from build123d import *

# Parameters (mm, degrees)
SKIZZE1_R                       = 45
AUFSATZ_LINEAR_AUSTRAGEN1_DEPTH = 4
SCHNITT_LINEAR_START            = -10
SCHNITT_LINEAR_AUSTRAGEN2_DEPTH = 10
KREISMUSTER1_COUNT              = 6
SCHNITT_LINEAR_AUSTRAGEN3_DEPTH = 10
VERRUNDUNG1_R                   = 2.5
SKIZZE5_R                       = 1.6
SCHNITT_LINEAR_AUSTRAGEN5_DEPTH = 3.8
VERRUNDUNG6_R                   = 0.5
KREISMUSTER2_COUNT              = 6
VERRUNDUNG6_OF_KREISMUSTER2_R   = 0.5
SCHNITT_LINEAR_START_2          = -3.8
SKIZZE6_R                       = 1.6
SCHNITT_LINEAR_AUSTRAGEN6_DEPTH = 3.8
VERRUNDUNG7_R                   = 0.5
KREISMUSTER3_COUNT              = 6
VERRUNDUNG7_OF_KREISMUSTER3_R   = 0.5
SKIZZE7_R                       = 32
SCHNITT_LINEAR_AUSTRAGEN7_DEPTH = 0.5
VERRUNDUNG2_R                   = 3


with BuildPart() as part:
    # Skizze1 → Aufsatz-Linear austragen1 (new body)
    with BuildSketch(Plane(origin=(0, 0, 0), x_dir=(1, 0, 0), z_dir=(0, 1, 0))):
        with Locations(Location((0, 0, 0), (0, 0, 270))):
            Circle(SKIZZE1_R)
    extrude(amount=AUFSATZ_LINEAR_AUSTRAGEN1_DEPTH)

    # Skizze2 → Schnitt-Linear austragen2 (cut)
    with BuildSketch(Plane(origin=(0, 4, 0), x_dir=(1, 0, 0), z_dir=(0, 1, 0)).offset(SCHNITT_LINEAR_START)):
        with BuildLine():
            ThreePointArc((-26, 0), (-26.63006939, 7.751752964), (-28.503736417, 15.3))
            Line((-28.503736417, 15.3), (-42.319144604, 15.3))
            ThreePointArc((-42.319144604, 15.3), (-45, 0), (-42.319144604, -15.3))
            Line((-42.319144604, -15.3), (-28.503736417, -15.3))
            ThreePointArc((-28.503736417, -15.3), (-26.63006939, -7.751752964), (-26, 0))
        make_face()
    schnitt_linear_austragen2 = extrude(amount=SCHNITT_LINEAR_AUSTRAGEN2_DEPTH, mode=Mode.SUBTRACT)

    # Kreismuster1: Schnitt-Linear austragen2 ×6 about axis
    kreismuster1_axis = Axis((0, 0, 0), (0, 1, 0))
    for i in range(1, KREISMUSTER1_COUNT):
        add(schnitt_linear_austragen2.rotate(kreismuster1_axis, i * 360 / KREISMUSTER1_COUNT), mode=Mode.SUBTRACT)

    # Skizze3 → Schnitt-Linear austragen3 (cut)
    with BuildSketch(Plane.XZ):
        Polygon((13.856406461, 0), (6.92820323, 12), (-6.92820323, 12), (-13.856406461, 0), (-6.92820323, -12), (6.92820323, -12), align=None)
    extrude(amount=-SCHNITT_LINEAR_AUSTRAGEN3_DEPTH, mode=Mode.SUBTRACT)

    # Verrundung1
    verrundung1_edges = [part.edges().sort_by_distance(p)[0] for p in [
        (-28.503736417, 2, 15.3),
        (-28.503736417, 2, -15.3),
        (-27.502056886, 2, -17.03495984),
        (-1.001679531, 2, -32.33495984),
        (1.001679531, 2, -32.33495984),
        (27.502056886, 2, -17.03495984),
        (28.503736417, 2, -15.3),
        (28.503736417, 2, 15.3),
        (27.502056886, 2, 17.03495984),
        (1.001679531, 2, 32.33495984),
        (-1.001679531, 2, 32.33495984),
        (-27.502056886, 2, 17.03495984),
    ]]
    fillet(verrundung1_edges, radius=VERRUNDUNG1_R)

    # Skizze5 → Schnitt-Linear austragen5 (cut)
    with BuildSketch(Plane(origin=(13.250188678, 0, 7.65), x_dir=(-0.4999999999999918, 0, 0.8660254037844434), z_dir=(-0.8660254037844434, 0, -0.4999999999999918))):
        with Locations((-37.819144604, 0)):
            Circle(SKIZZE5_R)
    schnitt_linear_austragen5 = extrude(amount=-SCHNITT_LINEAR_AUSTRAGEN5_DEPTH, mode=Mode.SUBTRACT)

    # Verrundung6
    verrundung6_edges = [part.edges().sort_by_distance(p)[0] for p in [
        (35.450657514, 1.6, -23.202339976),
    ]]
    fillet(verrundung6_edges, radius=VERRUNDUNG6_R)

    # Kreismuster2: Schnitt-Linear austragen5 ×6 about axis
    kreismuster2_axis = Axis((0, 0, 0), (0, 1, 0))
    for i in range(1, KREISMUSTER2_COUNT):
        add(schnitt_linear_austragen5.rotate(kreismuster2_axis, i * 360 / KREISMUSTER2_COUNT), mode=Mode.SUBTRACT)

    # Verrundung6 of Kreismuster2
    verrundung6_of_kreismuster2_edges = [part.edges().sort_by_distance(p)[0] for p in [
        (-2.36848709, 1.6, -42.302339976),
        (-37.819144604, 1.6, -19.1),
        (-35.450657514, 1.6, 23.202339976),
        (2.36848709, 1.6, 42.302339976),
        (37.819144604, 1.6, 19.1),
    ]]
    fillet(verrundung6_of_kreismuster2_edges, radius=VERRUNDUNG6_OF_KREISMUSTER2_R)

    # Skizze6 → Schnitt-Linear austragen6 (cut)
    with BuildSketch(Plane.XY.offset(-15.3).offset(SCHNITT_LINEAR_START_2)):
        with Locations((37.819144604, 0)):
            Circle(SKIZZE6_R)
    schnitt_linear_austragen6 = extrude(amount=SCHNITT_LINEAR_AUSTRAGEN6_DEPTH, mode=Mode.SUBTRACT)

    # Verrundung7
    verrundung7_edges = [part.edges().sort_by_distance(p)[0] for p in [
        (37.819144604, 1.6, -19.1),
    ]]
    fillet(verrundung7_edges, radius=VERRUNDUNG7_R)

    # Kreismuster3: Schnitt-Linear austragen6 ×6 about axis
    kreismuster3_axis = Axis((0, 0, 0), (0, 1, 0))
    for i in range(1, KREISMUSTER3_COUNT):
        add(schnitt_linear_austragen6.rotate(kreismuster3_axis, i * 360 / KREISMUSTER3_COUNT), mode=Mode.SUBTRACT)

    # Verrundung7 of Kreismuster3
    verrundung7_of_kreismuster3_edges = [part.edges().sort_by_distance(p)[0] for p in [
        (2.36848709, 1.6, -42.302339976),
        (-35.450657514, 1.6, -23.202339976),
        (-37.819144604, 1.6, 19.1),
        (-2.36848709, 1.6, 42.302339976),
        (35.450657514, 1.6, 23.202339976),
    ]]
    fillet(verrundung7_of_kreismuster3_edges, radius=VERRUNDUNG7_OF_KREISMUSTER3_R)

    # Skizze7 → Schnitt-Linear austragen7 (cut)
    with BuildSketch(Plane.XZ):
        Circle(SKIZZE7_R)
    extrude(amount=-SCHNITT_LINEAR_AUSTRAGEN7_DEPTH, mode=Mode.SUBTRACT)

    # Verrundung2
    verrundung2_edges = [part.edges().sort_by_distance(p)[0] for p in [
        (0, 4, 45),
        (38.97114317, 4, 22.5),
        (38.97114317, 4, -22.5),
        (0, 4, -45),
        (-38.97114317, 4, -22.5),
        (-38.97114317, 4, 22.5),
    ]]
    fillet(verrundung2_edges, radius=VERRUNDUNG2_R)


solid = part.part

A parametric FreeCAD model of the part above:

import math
import FreeCAD as App
import Part
import Sketcher

V = App.Vector
Q = App.Units.Quantity


def edges_at(feature, points):
    """Names of the edges that pass closest to the given points."""
    edges = feature.Shape.Edges
    near = lambda p: min(range(len(edges)), key=lambda i: edges[i].distToShape(Part.Vertex(*p))[0])
    return sorted({f"Edge{near(p) + 1}" for p in points})


def add_polygon(sketch, points):
    """Adds a closed chain of lines whose ends are joined by coincident constraints."""
    first, n = sketch.GeometryCount, len(points)
    for a, b in zip(points, points[1:] + points[:1]):
        sketch.addGeometry(Part.LineSegment(App.Vector(*a, 0), App.Vector(*b, 0)), False)
    for i in range(n):
        sketch.addConstraint(Sketcher.Constraint("Coincident", first + i, 2, first + (i + 1) % n, 1))

doc = App.newDocument("Part")
body = doc.addObject("PartDesign::Body", "Body")

sketch1 = body.newObject("Sketcher::SketchObject", "Sketch")
sketch1.AttachmentSupport = (doc.getObject("XZ_Plane"), [""])
sketch1.MapMode = "FlatFace"
sketch1.addGeometry(Part.Circle(V(0, 0, 0), V(0, 0, 1), 45), False)
sketch1.addConstraint(Sketcher.Constraint("Coincident", 0, 3, -1, 1))
sketch1.addConstraint(Sketcher.Constraint("Diameter", 0, 90.0))
pad1 = body.newObject("PartDesign::Pad", "Pad")
pad1.Profile = sketch1
pad1.Length = 4
pad1.Reversed = True

sketch2 = body.newObject("Sketcher::SketchObject", "Sketch001")
sketch2.AttachmentSupport = (doc.getObject("XZ_Plane"), [""])
sketch2.MapMode = "FlatFace"
sketch2.AttachmentOffset = App.Placement(V(0, 0, 6), App.Rotation())
sketch2.addGeometry(Part.ArcOfCircle(Part.Circle(V(-74, 0, 0), V(0, 0, 1), 48), math.radians(-18.59), math.radians(0)), False)
sketch2.addGeometry(Part.LineSegment(V(-29, -15, 0), V(-42, -15, 0)), False)
sketch2.addGeometry(Part.ArcOfCircle(Part.Circle(V(0, 0, 0), V(0, 0, 1), 45), math.radians(160), math.radians(200)), False)
sketch2.addGeometry(Part.LineSegment(V(-42, 15, 0), V(-29, 15, 0)), False)
sketch2.addGeometry(Part.ArcOfCircle(Part.Circle(V(-74, 0, 0), V(0, 0, 1), 48), math.radians(0), math.radians(18.59)), False)
sketch2.addConstraint(Sketcher.Constraint("Coincident", 0, 1, 1, 1))
sketch2.addConstraint(Sketcher.Constraint("Coincident", 1, 2, 2, 2))
sketch2.addConstraint(Sketcher.Constraint("Coincident", 2, 1, 3, 1))
sketch2.addConstraint(Sketcher.Constraint("Coincident", 3, 2, 4, 2))
sketch2.addConstraint(Sketcher.Constraint("Tangent", 4, 1, 0, 2))
sketch2.addConstraint(Sketcher.Constraint("Horizontal", 1))
sketch2.addConstraint(Sketcher.Constraint("Horizontal", 3))
sketch2.addConstraint(Sketcher.Constraint("Coincident", 2, 3, -1, 1))
sketch2.addConstraint(Sketcher.Constraint("Equal", 0, 4))
sketch2.addConstraint(Sketcher.Constraint("Symmetric", 0, 1, 3, 2, -1))
sketch2.addConstraint(Sketcher.Constraint("PointOnObject", 4, 1, -1))
sketch2.addConstraint(Sketcher.Constraint("Radius", 0, 48.0))
sketch2.addConstraint(Sketcher.Constraint("Radius", 2, 45.0))
sketch2.addConstraint(Sketcher.Constraint("DistanceX", 0, 3, -1, 1, 74.0))
sketch2.addConstraint(Sketcher.Constraint("DistanceY", 0, 1, -1, 1, 15.3))
pocket1 = body.newObject("PartDesign::Pocket", "Pocket")
pocket1.Profile = sketch2
pocket1.Length = 10
doc.recompute()

polarpattern = body.newObject("PartDesign::PolarPattern", "PolarPattern")
polarpattern.Originals = [pocket1]
polarpattern.Axis = (doc.getObject("Y_Axis"), [""])
polarpattern.Angle = 360
polarpattern.Occurrences = 6
body.Tip = polarpattern

sketch3 = body.newObject("Sketcher::SketchObject", "Sketch002")
sketch3.AttachmentSupport = (doc.getObject("XZ_Plane"), [""])
sketch3.MapMode = "FlatFace"
add_polygon(sketch3, [(14, 0), (7, 12), (-7, 12), (-14, 0), (-7, -12), (7, -12)])
sketch3.addConstraint(Sketcher.Constraint("Horizontal", 1))
sketch3.addConstraint(Sketcher.Constraint("Horizontal", 4))
sketch3.addConstraint(Sketcher.Constraint("Symmetric", 0, 2, 3, 2, -1, 1))
sketch3.addConstraint(Sketcher.Constraint("Symmetric", 2, 2, 5, 2, -1, 1))
sketch3.addConstraint(Sketcher.Constraint("PointOnObject", 2, 2, -1))
sketch3.addConstraint(Sketcher.Constraint("Parallel", 2, 5))
sketch3.addConstraint(Sketcher.Constraint("Vertical", 1, 2, 3, 2))
sketch3.addConstraint(Sketcher.Constraint("Angle", 0, Q("120 deg")))
sketch3.addConstraint(Sketcher.Constraint("DistanceY", -1, 1, 0, 2, 12.0))
sketch3.addConstraint(Sketcher.Constraint("DistanceX", 1, 2, 1, 1, 13.856406))
pocket2 = body.newObject("PartDesign::Pocket", "Pocket001")
pocket2.Profile = sketch3
pocket2.Length = 10
doc.recompute()

fillet = body.newObject("PartDesign::Fillet", "Fillet")
fillet.Base = (pocket2, edges_at(pocket2, [
    (-28.504, 2, 15.3),
    (-28.504, 2, -15.3),
    (-27.502, 2, -17.035),
    (-1.002, 2, -32.335),
    (1.002, 2, -32.335),
    (27.502, 2, -17.035),
    (28.504, 2, -15.3),
    (28.504, 2, 15.3),
    (27.502, 2, 17.035),
    (1.002, 2, 32.335),
    (-1.002, 2, 32.335),
    (-27.502, 2, 17.035),
]))
fillet.Radius = 2.5

sketch4 = body.newObject("Sketcher::SketchObject", "Sketch003")
sketch4.Placement = App.Placement(V(13.250189, 0, 7.65), App.Rotation(V(-0.5, 0, 0.866025404), V(0, 1, 0), V(-0.866025404, 0, -0.5), "ZXY"))
sketch4.addGeometry(Part.Circle(V(-37.8, 0, 0), V(0, 0, 1), 1.6), False)
sketch4.addConstraint(Sketcher.Constraint("PointOnObject", 0, 3, -1))
sketch4.addConstraint(Sketcher.Constraint("Diameter", 0, 3.2))
sketch4.addConstraint(Sketcher.Constraint("DistanceX", 0, 3, -1, 1, 37.819145))
pocket3 = body.newObject("PartDesign::Pocket", "Pocket002")
pocket3.Profile = sketch4
pocket3.Length = 3.8
doc.recompute()

fillet2 = body.newObject("PartDesign::Fillet", "Fillet001")
fillet2.Base = (pocket3, edges_at(pocket3, [(35.451, 1.6, -23.202)]))
fillet2.Radius = 0.5
doc.recompute()

polarpattern2 = body.newObject("PartDesign::PolarPattern", "PolarPattern001")
polarpattern2.Originals = [pocket3]
polarpattern2.Axis = (doc.getObject("Y_Axis"), [""])
polarpattern2.Angle = 360
polarpattern2.Occurrences = 6
body.Tip = polarpattern2
doc.recompute()

fillet3 = body.newObject("PartDesign::Fillet", "Fillet002")
fillet3.Base = (polarpattern2, edges_at(polarpattern2, [
    (-2.368, 1.6, -42.302),
    (-37.819, 1.6, -19.1),
    (-35.451, 1.6, 23.202),
    (2.368, 1.6, 42.302),
    (37.819, 1.6, 19.1),
]))
fillet3.Radius = 0.5

sketch5 = body.newObject("Sketcher::SketchObject", "Sketch004")
sketch5.AttachmentSupport = (doc.getObject("XY_Plane"), [""])
sketch5.MapMode = "FlatFace"
sketch5.AttachmentOffset = App.Placement(V(0, 0, -19.1), App.Rotation())
sketch5.addGeometry(Part.Circle(V(37.8, 0, 0), V(0, 0, 1), 1.6), False)
sketch5.addConstraint(Sketcher.Constraint("PointOnObject", 0, 3, -1))
sketch5.addConstraint(Sketcher.Constraint("Diameter", 0, 3.2))
sketch5.addConstraint(Sketcher.Constraint("DistanceX", -1, 1, 0, 3, 37.819145))
pocket4 = body.newObject("PartDesign::Pocket", "Pocket003")
pocket4.Profile = sketch5
pocket4.Length = 3.8
pocket4.Reversed = True
doc.recompute()

fillet4 = body.newObject("PartDesign::Fillet", "Fillet003")
fillet4.Base = (pocket4, edges_at(pocket4, [(37.819, 1.6, -19.1)]))
fillet4.Radius = 0.5
doc.recompute()

polarpattern3 = body.newObject("PartDesign::PolarPattern", "PolarPattern002")
polarpattern3.Originals = [pocket4]
polarpattern3.Axis = (doc.getObject("Y_Axis"), [""])
polarpattern3.Angle = 360
polarpattern3.Occurrences = 6
body.Tip = polarpattern3
doc.recompute()

fillet5 = body.newObject("PartDesign::Fillet", "Fillet004")
fillet5.Base = (polarpattern3, edges_at(polarpattern3, [
    (2.368, 1.6, -42.302),
    (-35.451, 1.6, -23.202),
    (-37.819, 1.6, 19.1),
    (-2.368, 1.6, 42.302),
    (35.451, 1.6, 23.202),
]))
fillet5.Radius = 0.5

sketch6 = body.newObject("Sketcher::SketchObject", "Sketch005")
sketch6.AttachmentSupport = (doc.getObject("XZ_Plane"), [""])
sketch6.MapMode = "FlatFace"
sketch6.addGeometry(Part.Circle(V(0, 0, 0), V(0, 0, 1), 32), False)
sketch6.addConstraint(Sketcher.Constraint("Coincident", 0, 3, -1, 1))
sketch6.addConstraint(Sketcher.Constraint("Diameter", 0, 64.0))
pocket5 = body.newObject("PartDesign::Pocket", "Pocket004")
pocket5.Profile = sketch6
pocket5.Length = 0.5
doc.recompute()

fillet6 = body.newObject("PartDesign::Fillet", "Fillet005")
fillet6.Base = (pocket5, edges_at(pocket5, [
    (0, 4, 45),
    (38.971, 4, 22.5),
    (38.971, 4, -22.5),
    (0, 4, -45),
    (-38.971, 4, -22.5),
    (-38.971, 4, 22.5),
]))
fillet6.Radius = 3

doc.recompute()
